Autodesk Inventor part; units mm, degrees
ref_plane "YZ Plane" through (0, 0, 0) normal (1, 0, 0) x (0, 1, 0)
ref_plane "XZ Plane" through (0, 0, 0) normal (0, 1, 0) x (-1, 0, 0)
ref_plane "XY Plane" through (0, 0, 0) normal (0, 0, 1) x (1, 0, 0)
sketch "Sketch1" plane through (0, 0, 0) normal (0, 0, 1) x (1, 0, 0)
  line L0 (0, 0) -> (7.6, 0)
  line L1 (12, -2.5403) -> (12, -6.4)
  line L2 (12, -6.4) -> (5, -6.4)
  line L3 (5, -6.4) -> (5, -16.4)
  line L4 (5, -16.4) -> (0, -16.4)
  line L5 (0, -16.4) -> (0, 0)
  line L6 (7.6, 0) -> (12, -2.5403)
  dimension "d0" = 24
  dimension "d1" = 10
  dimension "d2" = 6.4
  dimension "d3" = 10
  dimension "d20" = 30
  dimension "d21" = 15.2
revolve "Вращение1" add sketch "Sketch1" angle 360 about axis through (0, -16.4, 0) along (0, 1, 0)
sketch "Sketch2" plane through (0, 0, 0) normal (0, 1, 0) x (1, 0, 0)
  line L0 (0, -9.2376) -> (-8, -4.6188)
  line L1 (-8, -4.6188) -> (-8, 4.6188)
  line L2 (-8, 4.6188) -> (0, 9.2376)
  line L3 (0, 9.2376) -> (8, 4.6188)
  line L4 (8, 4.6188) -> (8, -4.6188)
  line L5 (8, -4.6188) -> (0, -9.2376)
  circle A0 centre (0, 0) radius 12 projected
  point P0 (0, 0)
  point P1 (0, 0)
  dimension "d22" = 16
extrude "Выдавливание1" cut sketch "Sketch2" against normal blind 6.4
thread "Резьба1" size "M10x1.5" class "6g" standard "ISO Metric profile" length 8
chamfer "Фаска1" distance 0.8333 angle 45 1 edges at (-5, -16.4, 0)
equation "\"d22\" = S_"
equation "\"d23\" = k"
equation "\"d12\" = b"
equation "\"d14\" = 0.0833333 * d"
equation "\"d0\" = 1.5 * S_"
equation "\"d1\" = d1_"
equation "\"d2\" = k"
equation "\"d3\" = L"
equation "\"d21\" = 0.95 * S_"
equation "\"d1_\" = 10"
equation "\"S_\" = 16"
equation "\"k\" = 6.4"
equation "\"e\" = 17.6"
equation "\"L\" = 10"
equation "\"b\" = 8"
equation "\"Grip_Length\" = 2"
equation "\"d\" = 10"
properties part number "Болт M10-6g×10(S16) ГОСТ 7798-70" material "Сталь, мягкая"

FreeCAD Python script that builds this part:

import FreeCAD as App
import Part
import Sketcher
from FreeCAD import Vector
Q = App.Units.Quantity


def edges_at(feature, points):
    """Names of the edges that pass closest to the given points."""
    edges = feature.Shape.Edges
    near = lambda p: min(range(len(edges)), key=lambda i: edges[i].distToShape(Part.Vertex(*p))[0])
    return sorted({f"Edge{near(p) + 1}" for p in points})

doc = App.newDocument("Part")
body = doc.addObject("PartDesign::Body", "Body")

# Sketch on XY plane
sketch1 = body.newObject("Sketcher::SketchObject", "Sketch")
sketch1.AttachmentSupport = (doc.getObject("XY_Plane"), [""])
sketch1.MapMode = "FlatFace"
sketch1.addGeometry(Part.LineSegment(Vector(7.6, 0, 0), Vector(0, 0, 0)), False)
sketch1.addGeometry(Part.LineSegment(Vector(0, 0, 0), Vector(0, -16.4, 0)), False)
sketch1.addGeometry(Part.LineSegment(Vector(0, -16.4, 0), Vector(5, -16.4, 0)), False)
sketch1.addGeometry(Part.LineSegment(Vector(5, -16.4, 0), Vector(5, -6.4, 0)), False)
sketch1.addGeometry(Part.LineSegment(Vector(5, -6.4, 0), Vector(12, -6.4, 0)), False)
sketch1.addGeometry(Part.LineSegment(Vector(12, -6.4, 0), Vector(12, -2.5, 0)), False)
sketch1.addGeometry(Part.LineSegment(Vector(12, -2.5, 0), Vector(7.6, 0, 0)), False)
sketch1.addConstraint(Sketcher.Constraint("Coincident", 0, 2, 1, 1))
sketch1.addConstraint(Sketcher.Constraint("Coincident", 1, 2, 2, 1))
sketch1.addConstraint(Sketcher.Constraint("Coincident", 2, 2, 3, 1))
sketch1.addConstraint(Sketcher.Constraint("Coincident", 3, 2, 4, 1))
sketch1.addConstraint(Sketcher.Constraint("Coincident", 4, 2, 5, 1))
sketch1.addConstraint(Sketcher.Constraint("Coincident", 5, 2, 6, 1))
sketch1.addConstraint(Sketcher.Constraint("Coincident", 6, 2, 0, 1))
sketch1.addConstraint(Sketcher.Constraint("Horizontal", 0))
sketch1.addConstraint(Sketcher.Constraint("Vertical", 1))
sketch1.addConstraint(Sketcher.Constraint("Horizontal", 2))
sketch1.addConstraint(Sketcher.Constraint("Vertical", 3))
sketch1.addConstraint(Sketcher.Constraint("Horizontal", 4))
sketch1.addConstraint(Sketcher.Constraint("Vertical", 5))
sketch1.addConstraint(Sketcher.Constraint("Coincident", 0, 2, -1, 1))
sketch1.addConstraint(Sketcher.Constraint("DistanceY", 3, 1, 3, 2, Q("10 mm")))
sketch1.addConstraint(Sketcher.Constraint("DistanceY", 3, 2, -1, 1, Q("6.4 mm")))
sketch1.addConstraint(Sketcher.Constraint("DistanceX", 2, 1, 2, 2, Q("5 mm")))
sketch1.addConstraint(Sketcher.Constraint("DistanceX", 4, 1, 4, 2, Q("7 mm")))
sketch1.addConstraint(Sketcher.Constraint("Angle", 6, Q("150.0004 deg")))
sketch1.addConstraint(Sketcher.Constraint("DistanceX", 0, 2, 0, 1, Q("7.6 mm")))
revolution = body.newObject("PartDesign::Revolution", "Revolution")
revolution.Profile = sketch1
revolution.ReferenceAxis = (sketch1, ["V_Axis"])
revolution.Angle = 360

# Sketch on XZ plane
sketch2 = body.newObject("Sketcher::SketchObject", "Sketch001")
sketch2.AttachmentSupport = (doc.getObject("XZ_Plane"), [""])
sketch2.MapMode = "FlatFace"
sketch2.addGeometry(Part.Circle(Vector(0, 0, 0), Vector(0, 0, 1), 12), False)
sketch2.addGeometry(Part.LineSegment(Vector(8, 5, 0), Vector(0, 9, 0)), False)
sketch2.addGeometry(Part.LineSegment(Vector(0, 9, 0), Vector(-8, 5, 0)), False)
sketch2.addGeometry(Part.LineSegment(Vector(-8, 5, 0), Vector(-8, -5, 0)), False)
sketch2.addGeometry(Part.LineSegment(Vector(-8, -5, 0), Vector(0, -9, 0)), False)
sketch2.addGeometry(Part.LineSegment(Vector(0, -9, 0), Vector(8, -5, 0)), False)
sketch2.addGeometry(Part.LineSegment(Vector(8, -5, 0), Vector(8, 5, 0)), False)
sketch2.addConstraint(Sketcher.Constraint("Coincident", 1, 2, 2, 1))
sketch2.addConstraint(Sketcher.Constraint("Coincident", 2, 2, 3, 1))
sketch2.addConstraint(Sketcher.Constraint("Coincident", 3, 2, 4, 1))
sketch2.addConstraint(Sketcher.Constraint("Coincident", 4, 2, 5, 1))
sketch2.addConstraint(Sketcher.Constraint("Coincident", 5, 2, 6, 1))
sketch2.addConstraint(Sketcher.Constraint("Coincident", 6, 2, 1, 1))
sketch2.addConstraint(Sketcher.Constraint("Vertical", 3))
sketch2.addConstraint(Sketcher.Constraint("Vertical", 6))
sketch2.addConstraint(Sketcher.Constraint("Coincident", 0, 3, -1, 1))
sketch2.addConstraint(Sketcher.Constraint("Symmetric", 1, 2, 4, 2, -1, 1))
sketch2.addConstraint(Sketcher.Constraint("Symmetric", 2, 2, 5, 2, -1, 1))
sketch2.addConstraint(Sketcher.Constraint("PointOnObject", 1, 2, -2))
sketch2.addConstraint(Sketcher.Constraint("Parallel", 1, 4))
sketch2.addConstraint(Sketcher.Constraint("Horizontal", 3, 2, 5, 2))
sketch2.addConstraint(Sketcher.Constraint("Diameter", 0, Q("24 mm")))
sketch2.addConstraint(Sketcher.Constraint("DistanceX", 3, 2, 5, 2, Q("16 mm")))
sketch2.addConstraint(Sketcher.Constraint("Angle", 1, Q("150 deg")))
sketch2.addConstraint(Sketcher.Constraint("DistanceY", 3, 2, 3, 1, Q("9.2376 mm")))
pocket1 = body.newObject("PartDesign::Pocket", "Pocket")
pocket1.Profile = sketch2
pocket1.Length = 6.4
pocket1.Reversed = True
doc.recompute()

chamfer = body.newObject("PartDesign::Chamfer", "Chamfer")
chamfer.Base = (pocket1, edges_at(pocket1, [(-5, -16.4, 0)]))
chamfer.Size = 0.8333

doc.recompute()
